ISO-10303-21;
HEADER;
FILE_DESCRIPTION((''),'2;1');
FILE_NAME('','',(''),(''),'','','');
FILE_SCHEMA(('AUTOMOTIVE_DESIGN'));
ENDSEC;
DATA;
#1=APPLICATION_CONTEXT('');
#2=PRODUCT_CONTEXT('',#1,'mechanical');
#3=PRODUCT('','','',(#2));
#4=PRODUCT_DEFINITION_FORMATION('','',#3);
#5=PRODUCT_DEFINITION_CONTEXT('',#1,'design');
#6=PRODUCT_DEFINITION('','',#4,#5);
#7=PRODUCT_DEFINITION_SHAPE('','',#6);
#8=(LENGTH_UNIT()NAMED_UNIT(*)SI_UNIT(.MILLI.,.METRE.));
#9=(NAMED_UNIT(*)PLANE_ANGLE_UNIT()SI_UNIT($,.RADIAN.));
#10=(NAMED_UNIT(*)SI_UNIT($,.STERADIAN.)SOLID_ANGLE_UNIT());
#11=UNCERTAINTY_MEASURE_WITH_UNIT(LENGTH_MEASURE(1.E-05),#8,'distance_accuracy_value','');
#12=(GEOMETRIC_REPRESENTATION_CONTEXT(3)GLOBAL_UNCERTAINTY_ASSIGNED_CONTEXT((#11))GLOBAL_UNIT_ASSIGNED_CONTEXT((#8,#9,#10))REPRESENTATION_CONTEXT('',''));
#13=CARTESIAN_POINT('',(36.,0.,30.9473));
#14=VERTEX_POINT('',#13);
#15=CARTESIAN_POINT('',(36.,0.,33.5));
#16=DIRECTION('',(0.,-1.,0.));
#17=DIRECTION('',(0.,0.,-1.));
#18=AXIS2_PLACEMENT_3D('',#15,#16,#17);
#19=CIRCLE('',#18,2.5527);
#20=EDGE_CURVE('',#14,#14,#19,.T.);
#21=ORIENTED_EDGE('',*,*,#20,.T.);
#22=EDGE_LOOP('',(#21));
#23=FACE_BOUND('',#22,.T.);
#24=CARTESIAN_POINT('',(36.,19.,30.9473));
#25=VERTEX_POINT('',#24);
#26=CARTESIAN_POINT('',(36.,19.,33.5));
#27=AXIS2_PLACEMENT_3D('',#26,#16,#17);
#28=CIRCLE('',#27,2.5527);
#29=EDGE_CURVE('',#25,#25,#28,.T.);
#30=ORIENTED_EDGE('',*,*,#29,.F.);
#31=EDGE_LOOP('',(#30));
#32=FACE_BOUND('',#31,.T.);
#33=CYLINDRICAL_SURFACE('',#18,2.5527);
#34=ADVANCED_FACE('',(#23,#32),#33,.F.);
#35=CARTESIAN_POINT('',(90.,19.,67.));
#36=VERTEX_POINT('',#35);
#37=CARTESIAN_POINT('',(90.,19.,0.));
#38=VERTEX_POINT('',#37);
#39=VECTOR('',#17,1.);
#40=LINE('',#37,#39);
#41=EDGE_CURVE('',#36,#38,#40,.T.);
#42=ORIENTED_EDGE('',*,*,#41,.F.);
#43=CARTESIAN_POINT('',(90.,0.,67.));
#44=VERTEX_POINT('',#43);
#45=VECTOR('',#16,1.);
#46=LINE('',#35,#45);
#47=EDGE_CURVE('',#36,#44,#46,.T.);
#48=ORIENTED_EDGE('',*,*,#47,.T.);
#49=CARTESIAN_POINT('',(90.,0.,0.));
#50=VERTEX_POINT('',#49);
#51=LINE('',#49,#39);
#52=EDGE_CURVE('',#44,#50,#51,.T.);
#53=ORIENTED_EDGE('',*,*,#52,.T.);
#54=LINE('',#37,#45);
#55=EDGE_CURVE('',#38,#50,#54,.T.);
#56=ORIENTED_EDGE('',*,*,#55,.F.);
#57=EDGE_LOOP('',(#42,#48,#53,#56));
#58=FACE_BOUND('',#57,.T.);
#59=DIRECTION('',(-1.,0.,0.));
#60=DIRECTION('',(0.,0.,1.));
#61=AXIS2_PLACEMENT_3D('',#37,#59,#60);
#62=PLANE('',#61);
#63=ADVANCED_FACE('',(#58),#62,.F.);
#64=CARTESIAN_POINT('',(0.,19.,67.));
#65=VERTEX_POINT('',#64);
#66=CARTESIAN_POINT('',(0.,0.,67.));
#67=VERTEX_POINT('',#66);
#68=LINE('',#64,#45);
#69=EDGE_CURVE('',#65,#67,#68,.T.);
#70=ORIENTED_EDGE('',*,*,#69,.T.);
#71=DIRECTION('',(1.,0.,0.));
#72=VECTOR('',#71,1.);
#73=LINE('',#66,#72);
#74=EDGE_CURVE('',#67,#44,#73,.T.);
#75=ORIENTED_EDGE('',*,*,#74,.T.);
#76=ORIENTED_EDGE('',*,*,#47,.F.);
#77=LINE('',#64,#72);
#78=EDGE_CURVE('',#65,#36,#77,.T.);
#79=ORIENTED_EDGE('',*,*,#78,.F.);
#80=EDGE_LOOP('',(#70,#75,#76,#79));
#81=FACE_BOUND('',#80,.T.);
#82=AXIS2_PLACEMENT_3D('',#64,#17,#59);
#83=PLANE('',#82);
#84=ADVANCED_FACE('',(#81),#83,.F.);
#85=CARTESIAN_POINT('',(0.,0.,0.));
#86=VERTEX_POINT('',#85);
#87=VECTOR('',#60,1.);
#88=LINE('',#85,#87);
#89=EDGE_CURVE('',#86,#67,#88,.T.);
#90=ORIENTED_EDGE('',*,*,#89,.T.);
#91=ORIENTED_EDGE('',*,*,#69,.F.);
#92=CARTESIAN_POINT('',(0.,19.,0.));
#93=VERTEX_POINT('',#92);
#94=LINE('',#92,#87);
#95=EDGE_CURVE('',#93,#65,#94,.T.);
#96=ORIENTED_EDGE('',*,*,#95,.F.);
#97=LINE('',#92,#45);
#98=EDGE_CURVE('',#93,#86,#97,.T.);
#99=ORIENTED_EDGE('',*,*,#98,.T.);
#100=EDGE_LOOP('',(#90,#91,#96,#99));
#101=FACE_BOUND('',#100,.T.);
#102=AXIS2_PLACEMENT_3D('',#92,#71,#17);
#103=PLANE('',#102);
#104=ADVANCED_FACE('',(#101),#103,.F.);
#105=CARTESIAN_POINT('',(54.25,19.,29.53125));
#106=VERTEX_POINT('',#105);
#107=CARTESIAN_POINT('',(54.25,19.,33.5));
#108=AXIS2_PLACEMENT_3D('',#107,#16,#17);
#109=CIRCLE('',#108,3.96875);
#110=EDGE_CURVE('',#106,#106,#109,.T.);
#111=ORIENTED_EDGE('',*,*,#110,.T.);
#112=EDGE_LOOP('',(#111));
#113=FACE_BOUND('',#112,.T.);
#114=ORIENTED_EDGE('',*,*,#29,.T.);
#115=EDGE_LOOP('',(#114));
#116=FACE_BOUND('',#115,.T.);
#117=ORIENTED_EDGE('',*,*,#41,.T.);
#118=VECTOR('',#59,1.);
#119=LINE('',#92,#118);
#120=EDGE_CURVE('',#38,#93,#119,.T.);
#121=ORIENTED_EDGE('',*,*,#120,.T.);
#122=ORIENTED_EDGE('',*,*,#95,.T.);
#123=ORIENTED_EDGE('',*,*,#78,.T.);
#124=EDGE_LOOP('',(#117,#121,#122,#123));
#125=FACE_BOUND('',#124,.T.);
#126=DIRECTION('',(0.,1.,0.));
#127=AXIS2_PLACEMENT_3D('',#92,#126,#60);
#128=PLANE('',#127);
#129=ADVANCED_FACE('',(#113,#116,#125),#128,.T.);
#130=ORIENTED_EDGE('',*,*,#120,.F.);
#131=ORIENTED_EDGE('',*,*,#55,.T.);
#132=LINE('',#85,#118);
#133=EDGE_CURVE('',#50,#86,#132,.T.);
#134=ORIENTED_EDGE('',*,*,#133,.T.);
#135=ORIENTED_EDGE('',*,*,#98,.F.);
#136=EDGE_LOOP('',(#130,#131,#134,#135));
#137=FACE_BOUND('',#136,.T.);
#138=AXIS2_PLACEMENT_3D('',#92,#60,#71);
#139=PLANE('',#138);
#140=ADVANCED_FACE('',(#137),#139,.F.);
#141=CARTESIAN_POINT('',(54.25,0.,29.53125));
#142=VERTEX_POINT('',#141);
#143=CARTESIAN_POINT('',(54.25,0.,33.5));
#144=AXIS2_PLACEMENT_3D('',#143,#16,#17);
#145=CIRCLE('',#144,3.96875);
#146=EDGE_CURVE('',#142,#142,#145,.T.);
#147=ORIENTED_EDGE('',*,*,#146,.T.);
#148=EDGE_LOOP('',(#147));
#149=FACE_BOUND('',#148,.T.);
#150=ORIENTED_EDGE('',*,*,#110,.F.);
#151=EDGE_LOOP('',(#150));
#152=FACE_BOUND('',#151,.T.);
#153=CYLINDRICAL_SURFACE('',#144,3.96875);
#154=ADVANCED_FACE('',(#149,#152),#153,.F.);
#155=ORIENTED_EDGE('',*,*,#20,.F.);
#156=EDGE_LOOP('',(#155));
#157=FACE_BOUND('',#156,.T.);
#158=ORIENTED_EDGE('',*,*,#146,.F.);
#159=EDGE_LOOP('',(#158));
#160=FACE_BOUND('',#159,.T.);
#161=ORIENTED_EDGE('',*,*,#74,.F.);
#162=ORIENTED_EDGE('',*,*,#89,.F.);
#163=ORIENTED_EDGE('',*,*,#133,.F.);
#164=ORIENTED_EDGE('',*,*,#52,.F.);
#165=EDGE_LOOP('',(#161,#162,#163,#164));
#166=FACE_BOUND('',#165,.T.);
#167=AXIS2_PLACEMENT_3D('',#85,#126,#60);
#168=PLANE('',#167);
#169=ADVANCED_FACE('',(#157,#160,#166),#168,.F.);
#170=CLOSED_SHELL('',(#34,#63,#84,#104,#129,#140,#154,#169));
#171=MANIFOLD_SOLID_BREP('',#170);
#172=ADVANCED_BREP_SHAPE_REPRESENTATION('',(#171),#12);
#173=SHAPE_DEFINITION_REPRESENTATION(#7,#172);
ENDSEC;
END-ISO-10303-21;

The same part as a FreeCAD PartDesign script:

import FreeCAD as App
import Part
import Sketcher


def add_polygon(sketch, points):
    """Adds a closed chain of lines whose ends are joined by coincident constraints."""
    first, n = sketch.GeometryCount, len(points)
    for a, b in zip(points, points[1:] + points[:1]):
        sketch.addGeometry(Part.LineSegment(App.Vector(*a, 0), App.Vector(*b, 0)), False)
    for i in range(n):
        sketch.addConstraint(Sketcher.Constraint("Coincident", first + i, 2, first + (i + 1) % n, 1))

doc = App.newDocument("Part")
body = doc.addObject("PartDesign::Body", "Body")

# Sketch on XZ plane
sketch1 = doc.addObject("Sketcher::SketchObject", "Sketch")
body.addObject(sketch1)
sketch1.AttachmentSupport = (doc.XZ_Plane, [""])
sketch1.MapMode = "FlatFace"
add_polygon(sketch1, [(0, 0), (0, 67), (90, 67), (90, 0)])  # lines 0-3
sketch1.addConstraint([
    Sketcher.Constraint("Vertical", 0),
    Sketcher.Constraint("Horizontal", 1),
    Sketcher.Constraint("Vertical", 2),
    Sketcher.Constraint("Horizontal", 3),
    Sketcher.Constraint("Coincident", 3, 2, -1, 1),
    Sketcher.Constraint("DistanceX", 1, 1, 1, 2, 90.0),
    Sketcher.Constraint("DistanceY", 0, 1, 0, 2, 67.0),
])
pad1 = doc.addObject("PartDesign::Pad", "Pad")
body.addObject(pad1)
pad1.Profile = sketch1
pad1.Length = 19
pad1.Reversed = True

# Sketch on XZ plane
sketch2 = doc.addObject("Sketcher::SketchObject", "Sketch001")
body.addObject(sketch2)
sketch2.AttachmentSupport = (doc.XZ_Plane, [""])
sketch2.MapMode = "FlatFace"
sketch2.addGeometry(Part.Circle(App.Vector(36, 33.5, 0), App.Vector(0, 0, 1), 2.5527), False)
sketch2.addConstraint([
    Sketcher.Constraint("DistanceX", -1, 1, 0, 3, 36.0),
    Sketcher.Constraint("Diameter", 0, 5.1054),
    Sketcher.Constraint("DistanceY", -1, 1, 0, 3, 33.5),
])
doc.recompute()
hole = doc.addObject("PartDesign::Hole", "Hole")
body.addObject(hole)
hole.Profile = sketch2
hole.ThreadType = "None"
hole.Diameter = 5.1054
hole.DepthType = "ThroughAll"

# Sketch on XZ plane
sketch3 = doc.addObject("Sketcher::SketchObject", "Sketch002")
body.addObject(sketch3)
sketch3.AttachmentSupport = (doc.XZ_Plane, [""])
sketch3.MapMode = "FlatFace"
sketch3.addGeometry(Part.Circle(App.Vector(54.25, 33.5, 0), App.Vector(0, 0, 1), 3.96875), False)
sketch3.addConstraint([
    Sketcher.Constraint("Diameter", 0, 7.9375),
    Sketcher.Constraint("DistanceY", -1, 1, 0, 3, 33.5),
    Sketcher.Constraint("DistanceX", -1, 1, 0, 3, 54.25),
])
doc.recompute()
hole2 = doc.addObject("PartDesign::Hole", "Hole001")
body.addObject(hole2)
hole2.Profile = sketch3
hole2.ThreadType = "None"
hole2.Diameter = 7.9375
hole2.DepthType = "ThroughAll"

doc.recompute()
